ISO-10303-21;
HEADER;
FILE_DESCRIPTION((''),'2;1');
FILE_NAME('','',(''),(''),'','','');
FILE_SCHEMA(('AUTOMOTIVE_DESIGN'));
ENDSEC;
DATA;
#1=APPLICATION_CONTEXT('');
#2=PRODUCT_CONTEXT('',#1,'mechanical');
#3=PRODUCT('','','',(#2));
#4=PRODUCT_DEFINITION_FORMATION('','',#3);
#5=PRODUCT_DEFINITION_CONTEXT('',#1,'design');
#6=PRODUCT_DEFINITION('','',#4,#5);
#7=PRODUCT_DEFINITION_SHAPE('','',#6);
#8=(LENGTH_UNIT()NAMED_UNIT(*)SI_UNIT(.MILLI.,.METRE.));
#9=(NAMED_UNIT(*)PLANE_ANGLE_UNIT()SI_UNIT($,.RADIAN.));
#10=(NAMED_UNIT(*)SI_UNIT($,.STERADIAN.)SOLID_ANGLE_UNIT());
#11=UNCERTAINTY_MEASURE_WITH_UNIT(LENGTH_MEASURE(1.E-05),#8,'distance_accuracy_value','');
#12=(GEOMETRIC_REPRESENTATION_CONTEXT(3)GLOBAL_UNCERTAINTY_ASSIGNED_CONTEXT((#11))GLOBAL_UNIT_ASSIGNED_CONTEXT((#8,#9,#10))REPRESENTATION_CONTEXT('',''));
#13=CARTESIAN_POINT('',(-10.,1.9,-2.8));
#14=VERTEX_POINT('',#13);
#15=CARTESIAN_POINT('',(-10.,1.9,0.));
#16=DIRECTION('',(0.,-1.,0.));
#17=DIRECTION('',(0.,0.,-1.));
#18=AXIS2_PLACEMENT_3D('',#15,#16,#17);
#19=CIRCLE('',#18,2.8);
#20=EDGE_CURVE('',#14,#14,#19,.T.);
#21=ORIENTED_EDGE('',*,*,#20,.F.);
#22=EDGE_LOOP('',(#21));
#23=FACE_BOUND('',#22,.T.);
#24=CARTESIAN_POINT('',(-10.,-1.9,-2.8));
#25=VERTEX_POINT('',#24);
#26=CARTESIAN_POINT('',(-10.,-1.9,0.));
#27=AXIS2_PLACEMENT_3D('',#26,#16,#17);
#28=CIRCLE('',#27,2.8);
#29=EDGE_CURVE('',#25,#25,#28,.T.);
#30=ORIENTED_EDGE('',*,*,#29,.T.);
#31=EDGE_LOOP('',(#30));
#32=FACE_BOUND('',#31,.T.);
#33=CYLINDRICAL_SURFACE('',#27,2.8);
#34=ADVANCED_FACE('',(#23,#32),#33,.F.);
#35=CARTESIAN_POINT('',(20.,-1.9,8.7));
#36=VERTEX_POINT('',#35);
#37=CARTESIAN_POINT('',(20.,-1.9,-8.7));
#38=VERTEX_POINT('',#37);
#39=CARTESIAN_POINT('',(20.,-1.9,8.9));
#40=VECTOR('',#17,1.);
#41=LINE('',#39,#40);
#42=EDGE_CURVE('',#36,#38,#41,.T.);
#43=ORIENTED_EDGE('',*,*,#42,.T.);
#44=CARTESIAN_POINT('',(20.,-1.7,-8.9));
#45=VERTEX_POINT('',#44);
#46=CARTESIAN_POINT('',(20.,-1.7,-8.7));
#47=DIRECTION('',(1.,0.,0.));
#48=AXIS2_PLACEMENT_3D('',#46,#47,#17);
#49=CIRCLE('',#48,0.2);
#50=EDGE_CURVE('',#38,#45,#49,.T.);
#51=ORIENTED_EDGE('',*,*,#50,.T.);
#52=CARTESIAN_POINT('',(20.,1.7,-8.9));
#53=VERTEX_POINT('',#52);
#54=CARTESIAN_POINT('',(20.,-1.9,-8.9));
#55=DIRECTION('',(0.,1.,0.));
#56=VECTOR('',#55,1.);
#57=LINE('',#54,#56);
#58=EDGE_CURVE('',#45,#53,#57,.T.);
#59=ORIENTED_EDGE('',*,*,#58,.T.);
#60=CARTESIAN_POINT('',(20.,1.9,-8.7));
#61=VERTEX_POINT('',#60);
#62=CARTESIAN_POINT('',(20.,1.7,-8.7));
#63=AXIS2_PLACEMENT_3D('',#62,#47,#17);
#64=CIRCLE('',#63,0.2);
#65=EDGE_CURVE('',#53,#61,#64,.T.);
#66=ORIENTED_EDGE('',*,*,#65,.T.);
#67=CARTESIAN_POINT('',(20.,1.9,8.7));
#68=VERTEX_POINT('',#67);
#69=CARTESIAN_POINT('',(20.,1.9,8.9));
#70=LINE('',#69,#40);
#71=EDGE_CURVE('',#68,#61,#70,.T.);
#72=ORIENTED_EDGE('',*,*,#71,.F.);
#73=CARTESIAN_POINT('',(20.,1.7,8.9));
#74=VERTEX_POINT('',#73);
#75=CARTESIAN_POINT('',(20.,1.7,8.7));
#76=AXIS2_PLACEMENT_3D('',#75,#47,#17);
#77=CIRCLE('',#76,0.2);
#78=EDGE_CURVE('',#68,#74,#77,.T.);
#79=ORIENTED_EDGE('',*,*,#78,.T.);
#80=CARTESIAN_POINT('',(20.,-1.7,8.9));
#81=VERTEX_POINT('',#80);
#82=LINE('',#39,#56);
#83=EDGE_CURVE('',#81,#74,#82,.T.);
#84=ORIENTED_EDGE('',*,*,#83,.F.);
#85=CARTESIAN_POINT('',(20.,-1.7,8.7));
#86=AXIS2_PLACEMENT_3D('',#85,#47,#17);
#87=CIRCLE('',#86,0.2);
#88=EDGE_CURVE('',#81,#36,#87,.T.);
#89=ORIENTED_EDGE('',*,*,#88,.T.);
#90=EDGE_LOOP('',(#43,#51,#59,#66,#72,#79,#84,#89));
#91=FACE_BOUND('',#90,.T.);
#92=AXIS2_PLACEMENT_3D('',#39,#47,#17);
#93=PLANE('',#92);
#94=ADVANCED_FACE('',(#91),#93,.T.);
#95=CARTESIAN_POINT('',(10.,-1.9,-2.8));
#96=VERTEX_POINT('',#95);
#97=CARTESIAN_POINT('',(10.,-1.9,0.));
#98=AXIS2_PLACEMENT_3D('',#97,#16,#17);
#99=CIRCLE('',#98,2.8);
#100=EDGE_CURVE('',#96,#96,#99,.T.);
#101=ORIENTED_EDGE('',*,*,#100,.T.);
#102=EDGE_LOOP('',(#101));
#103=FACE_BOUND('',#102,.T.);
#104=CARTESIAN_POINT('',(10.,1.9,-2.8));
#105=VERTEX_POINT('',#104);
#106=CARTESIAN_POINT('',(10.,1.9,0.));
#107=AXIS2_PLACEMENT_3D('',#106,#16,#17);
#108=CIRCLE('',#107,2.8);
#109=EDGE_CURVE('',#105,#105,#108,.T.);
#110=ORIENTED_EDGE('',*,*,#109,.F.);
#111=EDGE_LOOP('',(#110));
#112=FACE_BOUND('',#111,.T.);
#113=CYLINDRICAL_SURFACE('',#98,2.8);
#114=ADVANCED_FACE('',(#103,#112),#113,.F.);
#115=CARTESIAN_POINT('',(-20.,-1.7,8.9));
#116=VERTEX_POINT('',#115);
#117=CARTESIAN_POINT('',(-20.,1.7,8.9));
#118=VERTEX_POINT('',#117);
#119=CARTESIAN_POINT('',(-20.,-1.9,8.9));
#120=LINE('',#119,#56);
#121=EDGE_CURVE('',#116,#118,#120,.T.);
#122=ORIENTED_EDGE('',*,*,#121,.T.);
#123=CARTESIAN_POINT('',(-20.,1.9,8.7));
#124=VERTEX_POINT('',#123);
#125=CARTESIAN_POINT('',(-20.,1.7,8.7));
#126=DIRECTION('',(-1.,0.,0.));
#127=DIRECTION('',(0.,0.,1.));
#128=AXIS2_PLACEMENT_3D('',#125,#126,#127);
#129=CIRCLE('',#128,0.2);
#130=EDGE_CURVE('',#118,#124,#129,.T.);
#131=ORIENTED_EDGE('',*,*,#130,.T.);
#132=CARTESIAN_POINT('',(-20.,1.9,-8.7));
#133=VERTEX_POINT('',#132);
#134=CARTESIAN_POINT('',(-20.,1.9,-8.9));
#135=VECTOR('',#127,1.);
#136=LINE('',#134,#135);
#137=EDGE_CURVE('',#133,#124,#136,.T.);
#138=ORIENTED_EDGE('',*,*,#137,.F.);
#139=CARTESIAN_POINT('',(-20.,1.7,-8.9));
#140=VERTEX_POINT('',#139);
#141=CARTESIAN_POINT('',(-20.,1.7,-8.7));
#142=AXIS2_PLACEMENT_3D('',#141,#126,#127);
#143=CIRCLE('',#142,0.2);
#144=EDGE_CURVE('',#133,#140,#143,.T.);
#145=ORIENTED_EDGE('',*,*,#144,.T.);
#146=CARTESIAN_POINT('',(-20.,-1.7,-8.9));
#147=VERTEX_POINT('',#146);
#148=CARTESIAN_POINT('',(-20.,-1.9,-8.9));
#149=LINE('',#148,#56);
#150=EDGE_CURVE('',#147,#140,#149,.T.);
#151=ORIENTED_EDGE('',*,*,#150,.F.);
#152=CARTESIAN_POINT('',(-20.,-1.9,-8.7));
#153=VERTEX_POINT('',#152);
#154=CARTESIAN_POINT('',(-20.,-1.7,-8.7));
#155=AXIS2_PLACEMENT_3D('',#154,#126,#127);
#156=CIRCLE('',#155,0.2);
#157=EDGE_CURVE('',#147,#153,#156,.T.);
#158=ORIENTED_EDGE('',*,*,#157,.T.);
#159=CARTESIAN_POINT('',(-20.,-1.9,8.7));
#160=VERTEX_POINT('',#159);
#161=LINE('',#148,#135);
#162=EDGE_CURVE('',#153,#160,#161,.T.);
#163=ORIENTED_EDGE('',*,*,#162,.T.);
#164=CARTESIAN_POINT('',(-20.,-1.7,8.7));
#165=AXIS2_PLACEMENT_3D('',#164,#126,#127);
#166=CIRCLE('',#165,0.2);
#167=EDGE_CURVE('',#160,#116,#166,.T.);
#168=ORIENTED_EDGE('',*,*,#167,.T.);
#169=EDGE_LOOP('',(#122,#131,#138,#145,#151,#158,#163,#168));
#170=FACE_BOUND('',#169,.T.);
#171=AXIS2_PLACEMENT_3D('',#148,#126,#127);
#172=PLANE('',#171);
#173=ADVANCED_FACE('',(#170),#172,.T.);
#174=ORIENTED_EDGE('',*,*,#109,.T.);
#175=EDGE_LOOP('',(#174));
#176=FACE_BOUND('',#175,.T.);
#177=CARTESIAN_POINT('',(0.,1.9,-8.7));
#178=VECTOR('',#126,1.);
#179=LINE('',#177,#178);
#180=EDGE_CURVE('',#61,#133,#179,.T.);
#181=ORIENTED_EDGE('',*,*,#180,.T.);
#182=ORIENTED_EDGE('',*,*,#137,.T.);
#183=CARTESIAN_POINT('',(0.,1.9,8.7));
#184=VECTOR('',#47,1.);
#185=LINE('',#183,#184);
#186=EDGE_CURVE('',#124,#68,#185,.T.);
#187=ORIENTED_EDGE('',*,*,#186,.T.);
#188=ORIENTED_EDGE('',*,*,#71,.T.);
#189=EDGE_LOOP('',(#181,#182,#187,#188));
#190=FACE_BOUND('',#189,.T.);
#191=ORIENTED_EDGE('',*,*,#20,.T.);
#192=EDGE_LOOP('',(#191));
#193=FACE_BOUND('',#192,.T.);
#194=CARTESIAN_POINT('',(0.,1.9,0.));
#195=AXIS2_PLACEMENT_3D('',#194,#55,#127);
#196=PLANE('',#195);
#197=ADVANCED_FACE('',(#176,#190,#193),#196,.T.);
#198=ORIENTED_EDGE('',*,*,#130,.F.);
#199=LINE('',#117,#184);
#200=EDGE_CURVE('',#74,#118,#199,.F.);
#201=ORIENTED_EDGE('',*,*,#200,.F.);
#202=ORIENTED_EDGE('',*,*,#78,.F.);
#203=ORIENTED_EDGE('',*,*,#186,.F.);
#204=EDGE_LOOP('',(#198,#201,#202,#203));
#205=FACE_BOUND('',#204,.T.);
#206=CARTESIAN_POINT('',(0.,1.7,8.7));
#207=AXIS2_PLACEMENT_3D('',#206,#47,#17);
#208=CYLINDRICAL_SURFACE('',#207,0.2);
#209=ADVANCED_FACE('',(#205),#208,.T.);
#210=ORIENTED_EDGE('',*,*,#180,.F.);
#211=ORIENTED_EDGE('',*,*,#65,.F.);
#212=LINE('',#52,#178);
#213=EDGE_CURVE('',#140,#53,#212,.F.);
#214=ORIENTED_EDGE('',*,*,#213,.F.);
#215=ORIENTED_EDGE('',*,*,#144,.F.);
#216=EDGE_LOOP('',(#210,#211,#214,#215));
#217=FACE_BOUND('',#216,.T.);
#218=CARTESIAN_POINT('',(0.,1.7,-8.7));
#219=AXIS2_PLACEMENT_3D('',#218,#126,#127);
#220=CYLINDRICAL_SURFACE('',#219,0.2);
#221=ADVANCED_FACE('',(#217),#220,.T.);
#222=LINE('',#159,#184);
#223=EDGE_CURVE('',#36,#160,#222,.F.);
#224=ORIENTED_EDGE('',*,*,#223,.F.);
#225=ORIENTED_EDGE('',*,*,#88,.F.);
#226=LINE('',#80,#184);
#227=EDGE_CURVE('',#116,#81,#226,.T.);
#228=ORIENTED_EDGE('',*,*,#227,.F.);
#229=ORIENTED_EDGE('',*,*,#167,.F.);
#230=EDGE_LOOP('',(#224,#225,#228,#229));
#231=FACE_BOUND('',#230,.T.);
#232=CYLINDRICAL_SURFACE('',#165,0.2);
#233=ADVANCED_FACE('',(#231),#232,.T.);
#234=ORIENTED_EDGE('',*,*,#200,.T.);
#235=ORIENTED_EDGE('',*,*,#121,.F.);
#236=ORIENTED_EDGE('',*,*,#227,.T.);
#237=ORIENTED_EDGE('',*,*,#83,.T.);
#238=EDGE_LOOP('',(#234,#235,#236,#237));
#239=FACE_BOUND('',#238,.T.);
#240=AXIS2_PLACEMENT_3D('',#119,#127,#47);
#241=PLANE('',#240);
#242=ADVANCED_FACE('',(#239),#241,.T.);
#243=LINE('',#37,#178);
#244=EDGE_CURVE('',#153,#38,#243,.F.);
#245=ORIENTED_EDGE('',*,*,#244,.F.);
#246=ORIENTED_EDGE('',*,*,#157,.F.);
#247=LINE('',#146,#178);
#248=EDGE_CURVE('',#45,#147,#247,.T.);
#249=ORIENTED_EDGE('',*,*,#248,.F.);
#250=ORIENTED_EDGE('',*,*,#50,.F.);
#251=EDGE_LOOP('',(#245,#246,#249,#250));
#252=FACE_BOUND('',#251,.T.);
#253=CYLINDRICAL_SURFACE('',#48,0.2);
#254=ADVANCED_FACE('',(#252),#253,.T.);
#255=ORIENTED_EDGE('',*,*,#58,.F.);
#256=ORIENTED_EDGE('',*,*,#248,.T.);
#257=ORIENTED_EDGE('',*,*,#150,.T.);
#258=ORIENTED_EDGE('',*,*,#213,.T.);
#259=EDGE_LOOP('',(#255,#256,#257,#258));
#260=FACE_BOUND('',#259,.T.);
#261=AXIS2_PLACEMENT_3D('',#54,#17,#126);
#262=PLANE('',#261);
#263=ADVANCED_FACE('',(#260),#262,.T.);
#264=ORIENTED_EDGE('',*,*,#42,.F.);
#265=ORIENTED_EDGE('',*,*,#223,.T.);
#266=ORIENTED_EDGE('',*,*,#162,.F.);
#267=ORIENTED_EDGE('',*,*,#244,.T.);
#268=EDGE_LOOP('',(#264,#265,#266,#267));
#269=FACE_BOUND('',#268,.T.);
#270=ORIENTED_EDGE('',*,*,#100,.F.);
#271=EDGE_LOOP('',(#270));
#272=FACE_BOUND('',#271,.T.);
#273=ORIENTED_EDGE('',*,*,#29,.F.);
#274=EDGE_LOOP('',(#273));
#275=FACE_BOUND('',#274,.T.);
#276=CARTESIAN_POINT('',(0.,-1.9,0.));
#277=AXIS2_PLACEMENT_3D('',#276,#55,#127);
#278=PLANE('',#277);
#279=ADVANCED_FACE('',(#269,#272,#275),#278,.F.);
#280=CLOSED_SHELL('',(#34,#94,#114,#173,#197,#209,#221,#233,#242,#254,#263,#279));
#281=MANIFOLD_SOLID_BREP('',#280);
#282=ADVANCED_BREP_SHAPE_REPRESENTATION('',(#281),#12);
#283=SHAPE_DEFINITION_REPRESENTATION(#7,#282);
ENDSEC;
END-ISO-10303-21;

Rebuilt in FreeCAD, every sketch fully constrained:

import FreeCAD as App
import Part
import Sketcher
Q = App.Units.Quantity


def edges_at(feature, points):
    """Names of the edges that pass closest to the given points."""
    edges = feature.Shape.Edges
    near = lambda p: min(range(len(edges)), key=lambda i: edges[i].distToShape(Part.Vertex(*p))[0])
    return sorted({f"Edge{near(p) + 1}" for p in points})


def add_polygon(sketch, points):
    """Adds a closed chain of lines whose ends are joined by coincident constraints."""
    first, n = sketch.GeometryCount, len(points)
    for a, b in zip(points, points[1:] + points[:1]):
        sketch.addGeometry(Part.LineSegment(App.Vector(*a, 0), App.Vector(*b, 0)), False)
    for i in range(n):
        sketch.addConstraint(Sketcher.Constraint("Coincident", first + i, 2, first + (i + 1) % n, 1))

doc = App.newDocument("Part")
body = doc.addObject("PartDesign::Body", "Body")

# Sketch on XZ plane
sketch1 = body.newObject("Sketcher::SketchObject", "Sketch")
sketch1.AttachmentSupport = (doc.getObject("XZ_Plane"), [""])
sketch1.MapMode = "FlatFace"
sketch1.AttachmentOffset = App.Placement(App.Vector(0, 0, -1.9), App.Rotation())
add_polygon(sketch1, [(-20, -8.9), (-20, 8.9), (20, 8.9), (20, -8.9)])  # lines 0-3
sketch1.addConstraint([
    Sketcher.Constraint("Vertical", 0),
    Sketcher.Constraint("Horizontal", 1),
    Sketcher.Constraint("Vertical", 2),
    Sketcher.Constraint("Horizontal", 3),
    Sketcher.Constraint("Symmetric", 0, 2, 2, 2, -1, 1),
    Sketcher.Constraint("DistanceX", 1, 1, 1, 2, Q("40 mm")),
    Sketcher.Constraint("DistanceY", 0, 1, 0, 2, Q("17.8 mm")),
])
pad1 = body.newObject("PartDesign::Pad", "Pad")
pad1.Profile = sketch1
pad1.Length = 3.8

# Sketch on XZ plane
sketch2 = body.newObject("Sketcher::SketchObject", "Sketch001")
sketch2.AttachmentSupport = (doc.getObject("XZ_Plane"), [""])
sketch2.MapMode = "FlatFace"
sketch2.AttachmentOffset = App.Placement(App.Vector(0, 0, 1.9), App.Rotation())
sketch2.addGeometry([
    Part.Circle(App.Vector(-10, 0, 0), App.Vector(0, 0, 1), 2.8),
    Part.Circle(App.Vector(10, 0, 0), App.Vector(0, 0, 1), 2.8),
], False)
sketch2.addConstraint([
    Sketcher.Constraint("Equal", 0, 1),
    Sketcher.Constraint("Symmetric", 0, 3, 1, 3, -1, 1),
    Sketcher.Constraint("PointOnObject", 0, 3, -1),
    Sketcher.Constraint("Diameter", 0, Q("5.6 mm")),
    Sketcher.Constraint("DistanceX", 0, 3, -1, 1, Q("10 mm")),
])
doc.recompute()
hole = body.newObject("PartDesign::Hole", "Hole")
hole.Profile = sketch2
hole.ThreadType = "None"
hole.Diameter = 5.6
hole.DepthType = "Dimension"
hole.Depth = 3.8
hole.DrillPoint = "Flat"
doc.recompute()

fillet = body.newObject("PartDesign::Fillet", "Fillet")
fillet.Base = (hole, edges_at(hole, [
    (0, -1.9, -8.9),
    (0, -1.9, 8.9),
    (0, 1.9, -8.9),
    (0, 1.9, 8.9),
]))
fillet.Radius = 0.2

doc.recompute()
